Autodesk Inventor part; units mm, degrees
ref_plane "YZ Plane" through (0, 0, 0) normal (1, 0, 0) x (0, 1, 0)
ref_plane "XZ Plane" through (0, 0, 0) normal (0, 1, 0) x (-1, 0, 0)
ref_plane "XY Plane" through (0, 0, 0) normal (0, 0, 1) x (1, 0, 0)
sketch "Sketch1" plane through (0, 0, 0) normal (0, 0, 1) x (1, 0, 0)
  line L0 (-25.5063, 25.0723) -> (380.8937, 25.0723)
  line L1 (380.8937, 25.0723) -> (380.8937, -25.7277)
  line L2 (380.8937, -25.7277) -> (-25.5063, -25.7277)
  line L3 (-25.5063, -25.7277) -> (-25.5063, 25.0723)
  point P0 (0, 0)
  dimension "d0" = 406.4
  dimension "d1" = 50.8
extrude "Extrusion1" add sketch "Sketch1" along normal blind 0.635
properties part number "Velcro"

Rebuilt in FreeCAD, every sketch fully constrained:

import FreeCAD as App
import Part
import Sketcher
from FreeCAD import Vector
Q = App.Units.Quantity


def add_polygon(sketch, points):
    """Adds a closed chain of lines whose ends are joined by coincident constraints."""
    first, n = sketch.GeometryCount, len(points)
    for a, b in zip(points, points[1:] + points[:1]):
        sketch.addGeometry(Part.LineSegment(App.Vector(*a, 0), App.Vector(*b, 0)), False)
    for i in range(n):
        sketch.addConstraint(Sketcher.Constraint("Coincident", first + i, 2, first + (i + 1) % n, 1))

doc = App.newDocument("Part")
params = doc.addObject("Spreadsheet::Sheet", "Params")
for row, (alias, value) in enumerate([
    ("sketch1_width", "16 in"),
    ("sketch1_height", "2 in"),
    ("pad1_length", "0.025 in"),
], start=1):
    params.set(f"A{row}", alias)
    params.set(f"B{row}", "=" + value)
    params.setAlias(f"B{row}", alias)

body = doc.addObject("PartDesign::Body", "Body")

# Sketch on XY plane
sketch1 = body.newObject("Sketcher::SketchObject", "Sketch")
sketch1.AttachmentSupport = (doc.getObject("XY_Plane"), [""])
sketch1.MapMode = "FlatFace"
add_polygon(sketch1, [(380.8937, 25.0723), (-25.5063, 25.0723), (-25.5063, -25.7277), (380.8937, -25.7277)])  # lines 0-3
sketch1.addConstraint([
    Sketcher.Constraint("Horizontal", 0),
    Sketcher.Constraint("Vertical", 1),
    Sketcher.Constraint("Horizontal", 2),
    Sketcher.Constraint("Vertical", 3),
    Sketcher.Constraint("DistanceX", 0, 2, 0, 1, Q("16 in")),
    Sketcher.Constraint("DistanceY", 1, 2, 1, 1, Q("2 in")),
    Sketcher.Constraint("DistanceY", -1, 1, 0, 2, Q("0.9871 in")),
    Sketcher.Constraint("DistanceX", 0, 2, -1, 1, 25.5063),
])
sketch1.setExpression("Constraints[8]", "Params.sketch1_width")
sketch1.setExpression("Constraints[9]", "Params.sketch1_height")
pad1 = body.newObject("PartDesign::Pad", "Pad")
pad1.Profile = sketch1
pad1.setExpression("Length", "Params.pad1_length")

doc.recompute()
